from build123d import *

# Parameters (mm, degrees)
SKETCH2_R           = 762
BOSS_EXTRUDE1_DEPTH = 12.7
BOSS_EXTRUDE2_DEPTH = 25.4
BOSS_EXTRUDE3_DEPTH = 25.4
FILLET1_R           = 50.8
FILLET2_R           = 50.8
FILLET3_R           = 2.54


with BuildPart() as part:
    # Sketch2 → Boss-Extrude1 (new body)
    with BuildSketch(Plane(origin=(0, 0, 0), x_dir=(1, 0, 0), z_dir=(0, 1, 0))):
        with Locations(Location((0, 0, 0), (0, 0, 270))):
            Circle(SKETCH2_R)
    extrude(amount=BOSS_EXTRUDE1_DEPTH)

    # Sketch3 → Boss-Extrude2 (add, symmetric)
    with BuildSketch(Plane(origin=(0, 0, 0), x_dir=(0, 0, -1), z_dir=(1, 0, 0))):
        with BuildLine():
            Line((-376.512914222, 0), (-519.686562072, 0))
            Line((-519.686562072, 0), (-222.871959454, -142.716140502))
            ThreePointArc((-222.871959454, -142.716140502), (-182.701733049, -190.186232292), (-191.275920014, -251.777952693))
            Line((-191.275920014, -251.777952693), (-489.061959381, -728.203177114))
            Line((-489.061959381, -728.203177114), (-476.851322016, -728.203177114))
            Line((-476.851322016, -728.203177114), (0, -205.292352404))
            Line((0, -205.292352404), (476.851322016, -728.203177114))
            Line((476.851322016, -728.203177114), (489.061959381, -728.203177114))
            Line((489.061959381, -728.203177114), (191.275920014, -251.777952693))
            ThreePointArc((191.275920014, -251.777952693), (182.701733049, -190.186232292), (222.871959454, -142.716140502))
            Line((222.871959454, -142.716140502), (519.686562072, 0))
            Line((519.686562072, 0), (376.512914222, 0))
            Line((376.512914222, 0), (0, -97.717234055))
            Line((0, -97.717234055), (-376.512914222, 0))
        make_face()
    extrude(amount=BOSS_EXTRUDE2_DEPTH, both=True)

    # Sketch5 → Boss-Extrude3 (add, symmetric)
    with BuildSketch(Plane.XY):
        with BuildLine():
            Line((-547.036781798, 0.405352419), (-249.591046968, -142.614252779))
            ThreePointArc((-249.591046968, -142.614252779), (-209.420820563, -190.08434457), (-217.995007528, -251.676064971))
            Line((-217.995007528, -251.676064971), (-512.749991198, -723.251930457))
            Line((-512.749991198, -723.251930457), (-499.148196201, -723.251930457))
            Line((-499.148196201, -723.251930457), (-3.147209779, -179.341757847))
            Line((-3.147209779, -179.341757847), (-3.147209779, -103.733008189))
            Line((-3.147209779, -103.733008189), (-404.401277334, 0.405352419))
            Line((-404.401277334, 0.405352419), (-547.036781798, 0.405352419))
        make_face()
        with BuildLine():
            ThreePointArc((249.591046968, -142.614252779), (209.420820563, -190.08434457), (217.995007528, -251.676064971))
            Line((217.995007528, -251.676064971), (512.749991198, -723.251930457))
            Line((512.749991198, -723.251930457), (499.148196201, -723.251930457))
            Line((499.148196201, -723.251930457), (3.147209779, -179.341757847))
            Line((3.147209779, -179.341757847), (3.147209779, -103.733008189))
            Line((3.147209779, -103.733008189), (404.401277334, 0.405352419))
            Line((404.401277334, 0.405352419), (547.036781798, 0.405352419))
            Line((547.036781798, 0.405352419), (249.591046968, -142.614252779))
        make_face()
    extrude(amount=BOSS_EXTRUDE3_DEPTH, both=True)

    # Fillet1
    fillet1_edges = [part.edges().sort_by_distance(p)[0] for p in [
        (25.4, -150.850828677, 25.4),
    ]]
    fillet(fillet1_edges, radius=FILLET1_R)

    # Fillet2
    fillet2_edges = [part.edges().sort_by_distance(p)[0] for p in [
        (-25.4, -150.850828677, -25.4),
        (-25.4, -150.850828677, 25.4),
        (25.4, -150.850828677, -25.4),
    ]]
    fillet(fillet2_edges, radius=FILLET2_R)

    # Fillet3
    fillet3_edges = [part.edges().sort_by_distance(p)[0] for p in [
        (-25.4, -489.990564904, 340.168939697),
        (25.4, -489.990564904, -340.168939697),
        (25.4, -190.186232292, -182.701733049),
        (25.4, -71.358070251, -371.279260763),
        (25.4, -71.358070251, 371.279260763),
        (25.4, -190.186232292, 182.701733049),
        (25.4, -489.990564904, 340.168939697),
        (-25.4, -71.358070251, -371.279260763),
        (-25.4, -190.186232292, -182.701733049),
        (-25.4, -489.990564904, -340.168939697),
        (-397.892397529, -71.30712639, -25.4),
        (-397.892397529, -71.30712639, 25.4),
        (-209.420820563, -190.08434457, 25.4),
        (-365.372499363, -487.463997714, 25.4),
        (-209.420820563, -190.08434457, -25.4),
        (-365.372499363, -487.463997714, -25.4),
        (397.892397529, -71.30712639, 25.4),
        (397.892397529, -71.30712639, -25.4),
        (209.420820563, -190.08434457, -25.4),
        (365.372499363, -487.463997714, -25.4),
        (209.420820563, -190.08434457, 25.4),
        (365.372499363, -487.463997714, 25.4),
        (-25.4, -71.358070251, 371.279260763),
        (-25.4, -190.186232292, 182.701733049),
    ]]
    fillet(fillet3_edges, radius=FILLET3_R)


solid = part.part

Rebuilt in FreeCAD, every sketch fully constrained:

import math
import FreeCAD as App
import Part
import Sketcher
Q = App.Units.Quantity


def edges_at(feature, points):
    """Names of the edges that pass closest to the given points."""
    edges = feature.Shape.Edges
    near = lambda p: min(range(len(edges)), key=lambda i: edges[i].distToShape(Part.Vertex(*p))[0])
    return sorted({f"Edge{near(p) + 1}" for p in points})

doc = App.newDocument("Part")
params = doc.addObject("Spreadsheet::Sheet", "Params")
for row, (alias, value) in enumerate([
    ("sketch1_diameter", "60 in"),
    ("pad1_length", "0.5 in"),
    ("sketch2_radius", "3 in"),
    ("pad2_length", "2 in"),
    ("sketch3_radius", "3 in"),
    ("pad3_length", "2 in"),
    ("fillet_radius", "2 in"),
    ("fillet2_radius", "2 in"),
    ("fillet3_radius", "0.1 in"),
], start=1):
    params.set(f"A{row}", alias)
    params.set(f"B{row}", "=" + value)
    params.setAlias(f"B{row}", alias)

body = doc.addObject("PartDesign::Body", "Body")

# Sketch on XZ plane
sketch1 = doc.addObject("Sketcher::SketchObject", "Sketch")
body.addObject(sketch1)
sketch1.AttachmentSupport = (doc.XZ_Plane, [""])
sketch1.MapMode = "FlatFace"
sketch1.addGeometry(Part.Circle(App.Vector(0, 0, 0), App.Vector(0, 0, 1), 762), False)
sketch1.addConstraint([
    Sketcher.Constraint("Coincident", 0, 3, -1, 1),
    Sketcher.Constraint("Diameter", 0, Q("60 in")),
])
sketch1.setExpression("Constraints[1]", "Params.sketch1_diameter")
pad1 = doc.addObject("PartDesign::Pad", "Pad")
body.addObject(pad1)
pad1.Profile = sketch1
pad1.setExpression("Length", "Params.pad1_length")
pad1.Reversed = True

# Sketch on YZ plane
sketch2 = doc.addObject("Sketcher::SketchObject", "Sketch001")
body.addObject(sketch2)
sketch2.AttachmentSupport = (doc.YZ_Plane, [""])
sketch2.MapMode = "FlatFace"
sketch2.addGeometry([
    Part.LineSegment(App.Vector(0, 377, 0), App.Vector(0, 520, 0)),  # 0
    Part.LineSegment(App.Vector(0, 520, 0), App.Vector(-143, 223, 0)),  # 1
    Part.ArcOfCircle(Part.Circle(App.Vector(-211, 256, 0), App.Vector(0, 0, 1), 76), math.radians(-122), math.radians(-26)),  # 2
    Part.LineSegment(App.Vector(-252, 191, 0), App.Vector(-728, 489, 0)),  # 3
    Part.LineSegment(App.Vector(-728, 489, 0), App.Vector(-728, 477, 0)),  # 4
    Part.LineSegment(App.Vector(-728, 477, 0), App.Vector(-205, 0, 0)),  # 5
    Part.LineSegment(App.Vector(-205, 0, 0), App.Vector(-728, -477, 0)),  # 6
    Part.LineSegment(App.Vector(-728, -477, 0), App.Vector(-728, -489, 0)),  # 7
    Part.LineSegment(App.Vector(-728, -489, 0), App.Vector(-252, -191, 0)),  # 8
    Part.ArcOfCircle(Part.Circle(App.Vector(-211, -256, 0), App.Vector(0, 0, 1), 76), math.radians(26), math.radians(122)),  # 9
    Part.LineSegment(App.Vector(-143, -223, 0), App.Vector(0, -520, 0)),  # 10
    Part.LineSegment(App.Vector(0, -520, 0), App.Vector(0, -377, 0)),  # 11
    Part.LineSegment(App.Vector(0, -377, 0), App.Vector(-98, 0, 0)),  # 12
    Part.LineSegment(App.Vector(-98, 0, 0), App.Vector(0, 377, 0)),  # 13
], False)
sketch2.addConstraint([
    Sketcher.Constraint("Coincident", 0, 2, 1, 1),
    Sketcher.Constraint("Tangent", 1, 2, 2, 2),
    Sketcher.Constraint("Tangent", 2, 1, 3, 1),
    Sketcher.Constraint("Coincident", 3, 2, 4, 1),
    Sketcher.Constraint("Coincident", 4, 2, 5, 1),
    Sketcher.Constraint("Coincident", 5, 2, 6, 1),
    Sketcher.Constraint("Coincident", 6, 2, 7, 1),
    Sketcher.Constraint("Coincident", 7, 2, 8, 1),
    Sketcher.Constraint("Tangent", 8, 2, 9, 2),
    Sketcher.Constraint("Tangent", 9, 1, 10, 1),
    Sketcher.Constraint("Coincident", 10, 2, 11, 1),
    Sketcher.Constraint("Coincident", 11, 2, 12, 1),
    Sketcher.Constraint("Coincident", 12, 2, 13, 1),
    Sketcher.Constraint("Coincident", 13, 2, 0, 1),
    Sketcher.Constraint("Vertical", 0),
    Sketcher.Constraint("Vertical", 4),
    Sketcher.Constraint("Vertical", 7),
    Sketcher.Constraint("Vertical", 11),
    Sketcher.Constraint("Equal", 2, 9),
    Sketcher.Constraint("Symmetric", 0, 2, 10, 2, -1, 1),
    Sketcher.Constraint("Symmetric", 2, 3, 9, 3, -1),
    Sketcher.Constraint("Symmetric", 4, 2, 6, 2, -1),
    Sketcher.Constraint("Symmetric", 11, 2, 13, 2, -1),
    Sketcher.Constraint("PointOnObject", 5, 2, -1),
    Sketcher.Constraint("PointOnObject", 12, 2, -1),
    Sketcher.Constraint("Equal", 4, 7),
    Sketcher.Constraint("Radius", 2, Q("3 in")),
    Sketcher.Constraint("DistanceY", 1, 2, 3, 2, Q("266.19 mm")),
    Sketcher.Constraint("DistanceX", 2, 1, 5, 2, Q("46.4856 mm")),
    Sketcher.Constraint("Distance", 1, Q("329.34299 mm")),
    Sketcher.Constraint("Distance", 5, Q("707.68843 mm")),
    Sketcher.Constraint("DistanceY", 0, 1, 0, 2, Q("143.173648 mm")),
    Sketcher.Constraint("DistanceY", 4, 2, 4, 1, Q("12.210637 mm")),
    Sketcher.Constraint("DistanceX", 1, 2, -1, 1, Q("142.716141 mm")),
    Sketcher.Constraint("DistanceY", -1, 1, 1, 2, Q("222.871959 mm")),
    Sketcher.Constraint("DistanceX", 5, 2, 12, 2, Q("107.575118 mm")),
])
sketch2.setExpression("Constraints[26]", "Params.sketch2_radius")
pad2 = doc.addObject("PartDesign::Pad", "Pad001")
body.addObject(pad2)
pad2.Profile = sketch2
pad2.setExpression("Length", "Params.pad2_length")
pad2.Midplane = True

# Sketch on XY plane
sketch3 = doc.addObject("Sketcher::SketchObject", "Sketch002")
body.addObject(sketch3)
sketch3.AttachmentSupport = (doc.XY_Plane, [""])
sketch3.MapMode = "FlatFace"
sketch3.addGeometry([
    Part.LineSegment(App.Vector(-547, 0, 0), App.Vector(-250, -143, 0)),  # 0
    Part.ArcOfCircle(Part.Circle(App.Vector(-283, -211, 0), App.Vector(0, 0, 1), 76), math.radians(-32), math.radians(64)),  # 1
    Part.LineSegment(App.Vector(-218, -252, 0), App.Vector(-513, -723, 0)),  # 2
    Part.LineSegment(App.Vector(-513, -723, 0), App.Vector(-499, -723, 0)),  # 3
    Part.LineSegment(App.Vector(-499, -723, 0), App.Vector(-3, -179, 0)),  # 4
    Part.LineSegment(App.Vector(-3, -179, 0), App.Vector(-3, -104, 0)),  # 5
    Part.LineSegment(App.Vector(-3, -104, 0), App.Vector(-404, 0, 0)),  # 6
    Part.LineSegment(App.Vector(-404, 0, 0), App.Vector(-547, 0, 0)),  # 7
    Part.ArcOfCircle(Part.Circle(App.Vector(283, -211, 0), App.Vector(0, 0, 1), 76), math.radians(116), math.radians(212)),  # 8
    Part.LineSegment(App.Vector(250, -143, 0), App.Vector(547, 0, 0)),  # 9
    Part.LineSegment(App.Vector(547, 0, 0), App.Vector(404, 0, 0)),  # 10
    Part.LineSegment(App.Vector(404, 0, 0), App.Vector(3, -104, 0)),  # 11
    Part.LineSegment(App.Vector(3, -104, 0), App.Vector(3, -179, 0)),  # 12
    Part.LineSegment(App.Vector(3, -179, 0), App.Vector(499, -723, 0)),  # 13
    Part.LineSegment(App.Vector(499, -723, 0), App.Vector(513, -723, 0)),  # 14
    Part.LineSegment(App.Vector(513, -723, 0), App.Vector(218, -252, 0)),  # 15
], False)
sketch3.addConstraint([
    Sketcher.Constraint("Tangent", 0, 2, 1, 2),
    Sketcher.Constraint("Tangent", 1, 1, 2, 1),
    Sketcher.Constraint("Coincident", 2, 2, 3, 1),
    Sketcher.Constraint("Coincident", 3, 2, 4, 1),
    Sketcher.Constraint("Coincident", 4, 2, 5, 1),
    Sketcher.Constraint("Coincident", 5, 2, 6, 1),
    Sketcher.Constraint("Coincident", 6, 2, 7, 1),
    Sketcher.Constraint("Coincident", 7, 2, 0, 1),
    Sketcher.Constraint("Tangent", 8, 1, 9, 1),
    Sketcher.Constraint("Coincident", 9, 2, 10, 1),
    Sketcher.Constraint("Coincident", 10, 2, 11, 1),
    Sketcher.Constraint("Coincident", 11, 2, 12, 1),
    Sketcher.Constraint("Coincident", 12, 2, 13, 1),
    Sketcher.Constraint("Coincident", 13, 2, 14, 1),
    Sketcher.Constraint("Coincident", 14, 2, 15, 1),
    Sketcher.Constraint("Tangent", 15, 2, 8, 2),
    Sketcher.Constraint("Horizontal", 3),
    Sketcher.Constraint("Vertical", 5),
    Sketcher.Constraint("Horizontal", 7),
    Sketcher.Constraint("Horizontal", 10),
    Sketcher.Constraint("Vertical", 12),
    Sketcher.Constraint("Horizontal", 14),
    Sketcher.Constraint("Equal", 1, 8),
    Sketcher.Constraint("Symmetric", 1, 3, 8, 3, -2),
    Sketcher.Constraint("Symmetric", 7, 2, 9, 2, -2),
    Sketcher.Constraint("Symmetric", 5, 2, 11, 2, -2),
    Sketcher.Constraint("Symmetric", 3, 2, 13, 2, -2),
    Sketcher.Constraint("Horizontal", 4, 2, 12, 2),
    Sketcher.Constraint("Equal", 7, 10),
    Sketcher.Constraint("Equal", 3, 14),
    Sketcher.Constraint("Radius", 1, Q("3 in")),
    Sketcher.Constraint("DistanceY", 5, 1, 5, 2, Q("75.60875 mm")),
    Sketcher.Constraint("Distance", 0, Q("330.043289 mm")),
    Sketcher.Constraint("Distance", 4, Q("736.108181 mm")),
    Sketcher.Constraint("DistanceX", 3, 1, 3, 2, Q("13.601795 mm")),
    Sketcher.Constraint("DistanceX", 7, 2, 7, 1, Q("142.635504 mm")),
    Sketcher.Constraint("DistanceY", 1, 3, -1, 1, Q("211.288168 mm")),
    Sketcher.Constraint("DistanceX", 2, 2, -1, 1, Q("512.749991 mm")),
    Sketcher.Constraint("DistanceY", 2, 2, -1, 1, Q("723.25193 mm")),
    Sketcher.Constraint("DistanceX", 4, 2, -1, 1, Q("3.14721 mm")),
    Sketcher.Constraint("DistanceX", 7, 2, -1, 1, Q("547.036782 mm")),
    Sketcher.Constraint("DistanceX", 0, 2, 8, 3, Q("532.202289 mm")),
])
sketch3.setExpression("Constraints[30]", "Params.sketch3_radius")
pad3 = doc.addObject("PartDesign::Pad", "Pad002")
body.addObject(pad3)
pad3.Profile = sketch3
pad3.setExpression("Length", "Params.pad3_length")
pad3.Midplane = True
doc.recompute()

fillet = doc.addObject("PartDesign::Fillet", "Fillet")
body.addObject(fillet)
fillet.Base = (pad3, edges_at(pad3, [(25.4, -150.851, 25.4)]))
fillet.setExpression("Radius", "Params.fillet_radius")
doc.recompute()

fillet2 = doc.addObject("PartDesign::Fillet", "Fillet001")
body.addObject(fillet2)
fillet2.Base = (fillet, edges_at(fillet, [(-25.4, -150.851, -25.4), (-25.4, -150.851, 25.4), (25.4, -150.851, -25.4)]))
fillet2.setExpression("Radius", "Params.fillet2_radius")
doc.recompute()

fillet3 = doc.addObject("PartDesign::Fillet", "Fillet002")
body.addObject(fillet3)
fillet3.Base = (fillet2, edges_at(fillet2, [
    (-25.4, -489.991, 340.169),
    (25.4, -489.991, -340.169),
    (25.4, -190.186, -182.702),
    (25.4, -71.358, -371.279),
    (25.4, -71.358, 371.279),
    (25.4, -190.186, 182.702),
    (25.4, -489.991, 340.169),
    (-25.4, -71.358, -371.279),
    (-25.4, -190.186, -182.702),
    (-25.4, -489.991, -340.169),
    (-397.892, -71.307, -25.4),
    (-397.892, -71.307, 25.4),
    (-209.421, -190.084, 25.4),
    (-365.372, -487.464, 25.4),
    (-209.421, -190.084, -25.4),
    (-365.372, -487.464, -25.4),
    (397.892, -71.307, 25.4),
    (397.892, -71.307, -25.4),
    (209.421, -190.084, -25.4),
    (365.372, -487.464, -25.4),
    (209.421, -190.084, 25.4),
    (365.372, -487.464, 25.4),
    (-25.4, -71.358, 371.279),
    (-25.4, -190.186, 182.702),
]))
fillet3.setExpression("Radius", "Params.fillet3_radius")

doc.recompute()
